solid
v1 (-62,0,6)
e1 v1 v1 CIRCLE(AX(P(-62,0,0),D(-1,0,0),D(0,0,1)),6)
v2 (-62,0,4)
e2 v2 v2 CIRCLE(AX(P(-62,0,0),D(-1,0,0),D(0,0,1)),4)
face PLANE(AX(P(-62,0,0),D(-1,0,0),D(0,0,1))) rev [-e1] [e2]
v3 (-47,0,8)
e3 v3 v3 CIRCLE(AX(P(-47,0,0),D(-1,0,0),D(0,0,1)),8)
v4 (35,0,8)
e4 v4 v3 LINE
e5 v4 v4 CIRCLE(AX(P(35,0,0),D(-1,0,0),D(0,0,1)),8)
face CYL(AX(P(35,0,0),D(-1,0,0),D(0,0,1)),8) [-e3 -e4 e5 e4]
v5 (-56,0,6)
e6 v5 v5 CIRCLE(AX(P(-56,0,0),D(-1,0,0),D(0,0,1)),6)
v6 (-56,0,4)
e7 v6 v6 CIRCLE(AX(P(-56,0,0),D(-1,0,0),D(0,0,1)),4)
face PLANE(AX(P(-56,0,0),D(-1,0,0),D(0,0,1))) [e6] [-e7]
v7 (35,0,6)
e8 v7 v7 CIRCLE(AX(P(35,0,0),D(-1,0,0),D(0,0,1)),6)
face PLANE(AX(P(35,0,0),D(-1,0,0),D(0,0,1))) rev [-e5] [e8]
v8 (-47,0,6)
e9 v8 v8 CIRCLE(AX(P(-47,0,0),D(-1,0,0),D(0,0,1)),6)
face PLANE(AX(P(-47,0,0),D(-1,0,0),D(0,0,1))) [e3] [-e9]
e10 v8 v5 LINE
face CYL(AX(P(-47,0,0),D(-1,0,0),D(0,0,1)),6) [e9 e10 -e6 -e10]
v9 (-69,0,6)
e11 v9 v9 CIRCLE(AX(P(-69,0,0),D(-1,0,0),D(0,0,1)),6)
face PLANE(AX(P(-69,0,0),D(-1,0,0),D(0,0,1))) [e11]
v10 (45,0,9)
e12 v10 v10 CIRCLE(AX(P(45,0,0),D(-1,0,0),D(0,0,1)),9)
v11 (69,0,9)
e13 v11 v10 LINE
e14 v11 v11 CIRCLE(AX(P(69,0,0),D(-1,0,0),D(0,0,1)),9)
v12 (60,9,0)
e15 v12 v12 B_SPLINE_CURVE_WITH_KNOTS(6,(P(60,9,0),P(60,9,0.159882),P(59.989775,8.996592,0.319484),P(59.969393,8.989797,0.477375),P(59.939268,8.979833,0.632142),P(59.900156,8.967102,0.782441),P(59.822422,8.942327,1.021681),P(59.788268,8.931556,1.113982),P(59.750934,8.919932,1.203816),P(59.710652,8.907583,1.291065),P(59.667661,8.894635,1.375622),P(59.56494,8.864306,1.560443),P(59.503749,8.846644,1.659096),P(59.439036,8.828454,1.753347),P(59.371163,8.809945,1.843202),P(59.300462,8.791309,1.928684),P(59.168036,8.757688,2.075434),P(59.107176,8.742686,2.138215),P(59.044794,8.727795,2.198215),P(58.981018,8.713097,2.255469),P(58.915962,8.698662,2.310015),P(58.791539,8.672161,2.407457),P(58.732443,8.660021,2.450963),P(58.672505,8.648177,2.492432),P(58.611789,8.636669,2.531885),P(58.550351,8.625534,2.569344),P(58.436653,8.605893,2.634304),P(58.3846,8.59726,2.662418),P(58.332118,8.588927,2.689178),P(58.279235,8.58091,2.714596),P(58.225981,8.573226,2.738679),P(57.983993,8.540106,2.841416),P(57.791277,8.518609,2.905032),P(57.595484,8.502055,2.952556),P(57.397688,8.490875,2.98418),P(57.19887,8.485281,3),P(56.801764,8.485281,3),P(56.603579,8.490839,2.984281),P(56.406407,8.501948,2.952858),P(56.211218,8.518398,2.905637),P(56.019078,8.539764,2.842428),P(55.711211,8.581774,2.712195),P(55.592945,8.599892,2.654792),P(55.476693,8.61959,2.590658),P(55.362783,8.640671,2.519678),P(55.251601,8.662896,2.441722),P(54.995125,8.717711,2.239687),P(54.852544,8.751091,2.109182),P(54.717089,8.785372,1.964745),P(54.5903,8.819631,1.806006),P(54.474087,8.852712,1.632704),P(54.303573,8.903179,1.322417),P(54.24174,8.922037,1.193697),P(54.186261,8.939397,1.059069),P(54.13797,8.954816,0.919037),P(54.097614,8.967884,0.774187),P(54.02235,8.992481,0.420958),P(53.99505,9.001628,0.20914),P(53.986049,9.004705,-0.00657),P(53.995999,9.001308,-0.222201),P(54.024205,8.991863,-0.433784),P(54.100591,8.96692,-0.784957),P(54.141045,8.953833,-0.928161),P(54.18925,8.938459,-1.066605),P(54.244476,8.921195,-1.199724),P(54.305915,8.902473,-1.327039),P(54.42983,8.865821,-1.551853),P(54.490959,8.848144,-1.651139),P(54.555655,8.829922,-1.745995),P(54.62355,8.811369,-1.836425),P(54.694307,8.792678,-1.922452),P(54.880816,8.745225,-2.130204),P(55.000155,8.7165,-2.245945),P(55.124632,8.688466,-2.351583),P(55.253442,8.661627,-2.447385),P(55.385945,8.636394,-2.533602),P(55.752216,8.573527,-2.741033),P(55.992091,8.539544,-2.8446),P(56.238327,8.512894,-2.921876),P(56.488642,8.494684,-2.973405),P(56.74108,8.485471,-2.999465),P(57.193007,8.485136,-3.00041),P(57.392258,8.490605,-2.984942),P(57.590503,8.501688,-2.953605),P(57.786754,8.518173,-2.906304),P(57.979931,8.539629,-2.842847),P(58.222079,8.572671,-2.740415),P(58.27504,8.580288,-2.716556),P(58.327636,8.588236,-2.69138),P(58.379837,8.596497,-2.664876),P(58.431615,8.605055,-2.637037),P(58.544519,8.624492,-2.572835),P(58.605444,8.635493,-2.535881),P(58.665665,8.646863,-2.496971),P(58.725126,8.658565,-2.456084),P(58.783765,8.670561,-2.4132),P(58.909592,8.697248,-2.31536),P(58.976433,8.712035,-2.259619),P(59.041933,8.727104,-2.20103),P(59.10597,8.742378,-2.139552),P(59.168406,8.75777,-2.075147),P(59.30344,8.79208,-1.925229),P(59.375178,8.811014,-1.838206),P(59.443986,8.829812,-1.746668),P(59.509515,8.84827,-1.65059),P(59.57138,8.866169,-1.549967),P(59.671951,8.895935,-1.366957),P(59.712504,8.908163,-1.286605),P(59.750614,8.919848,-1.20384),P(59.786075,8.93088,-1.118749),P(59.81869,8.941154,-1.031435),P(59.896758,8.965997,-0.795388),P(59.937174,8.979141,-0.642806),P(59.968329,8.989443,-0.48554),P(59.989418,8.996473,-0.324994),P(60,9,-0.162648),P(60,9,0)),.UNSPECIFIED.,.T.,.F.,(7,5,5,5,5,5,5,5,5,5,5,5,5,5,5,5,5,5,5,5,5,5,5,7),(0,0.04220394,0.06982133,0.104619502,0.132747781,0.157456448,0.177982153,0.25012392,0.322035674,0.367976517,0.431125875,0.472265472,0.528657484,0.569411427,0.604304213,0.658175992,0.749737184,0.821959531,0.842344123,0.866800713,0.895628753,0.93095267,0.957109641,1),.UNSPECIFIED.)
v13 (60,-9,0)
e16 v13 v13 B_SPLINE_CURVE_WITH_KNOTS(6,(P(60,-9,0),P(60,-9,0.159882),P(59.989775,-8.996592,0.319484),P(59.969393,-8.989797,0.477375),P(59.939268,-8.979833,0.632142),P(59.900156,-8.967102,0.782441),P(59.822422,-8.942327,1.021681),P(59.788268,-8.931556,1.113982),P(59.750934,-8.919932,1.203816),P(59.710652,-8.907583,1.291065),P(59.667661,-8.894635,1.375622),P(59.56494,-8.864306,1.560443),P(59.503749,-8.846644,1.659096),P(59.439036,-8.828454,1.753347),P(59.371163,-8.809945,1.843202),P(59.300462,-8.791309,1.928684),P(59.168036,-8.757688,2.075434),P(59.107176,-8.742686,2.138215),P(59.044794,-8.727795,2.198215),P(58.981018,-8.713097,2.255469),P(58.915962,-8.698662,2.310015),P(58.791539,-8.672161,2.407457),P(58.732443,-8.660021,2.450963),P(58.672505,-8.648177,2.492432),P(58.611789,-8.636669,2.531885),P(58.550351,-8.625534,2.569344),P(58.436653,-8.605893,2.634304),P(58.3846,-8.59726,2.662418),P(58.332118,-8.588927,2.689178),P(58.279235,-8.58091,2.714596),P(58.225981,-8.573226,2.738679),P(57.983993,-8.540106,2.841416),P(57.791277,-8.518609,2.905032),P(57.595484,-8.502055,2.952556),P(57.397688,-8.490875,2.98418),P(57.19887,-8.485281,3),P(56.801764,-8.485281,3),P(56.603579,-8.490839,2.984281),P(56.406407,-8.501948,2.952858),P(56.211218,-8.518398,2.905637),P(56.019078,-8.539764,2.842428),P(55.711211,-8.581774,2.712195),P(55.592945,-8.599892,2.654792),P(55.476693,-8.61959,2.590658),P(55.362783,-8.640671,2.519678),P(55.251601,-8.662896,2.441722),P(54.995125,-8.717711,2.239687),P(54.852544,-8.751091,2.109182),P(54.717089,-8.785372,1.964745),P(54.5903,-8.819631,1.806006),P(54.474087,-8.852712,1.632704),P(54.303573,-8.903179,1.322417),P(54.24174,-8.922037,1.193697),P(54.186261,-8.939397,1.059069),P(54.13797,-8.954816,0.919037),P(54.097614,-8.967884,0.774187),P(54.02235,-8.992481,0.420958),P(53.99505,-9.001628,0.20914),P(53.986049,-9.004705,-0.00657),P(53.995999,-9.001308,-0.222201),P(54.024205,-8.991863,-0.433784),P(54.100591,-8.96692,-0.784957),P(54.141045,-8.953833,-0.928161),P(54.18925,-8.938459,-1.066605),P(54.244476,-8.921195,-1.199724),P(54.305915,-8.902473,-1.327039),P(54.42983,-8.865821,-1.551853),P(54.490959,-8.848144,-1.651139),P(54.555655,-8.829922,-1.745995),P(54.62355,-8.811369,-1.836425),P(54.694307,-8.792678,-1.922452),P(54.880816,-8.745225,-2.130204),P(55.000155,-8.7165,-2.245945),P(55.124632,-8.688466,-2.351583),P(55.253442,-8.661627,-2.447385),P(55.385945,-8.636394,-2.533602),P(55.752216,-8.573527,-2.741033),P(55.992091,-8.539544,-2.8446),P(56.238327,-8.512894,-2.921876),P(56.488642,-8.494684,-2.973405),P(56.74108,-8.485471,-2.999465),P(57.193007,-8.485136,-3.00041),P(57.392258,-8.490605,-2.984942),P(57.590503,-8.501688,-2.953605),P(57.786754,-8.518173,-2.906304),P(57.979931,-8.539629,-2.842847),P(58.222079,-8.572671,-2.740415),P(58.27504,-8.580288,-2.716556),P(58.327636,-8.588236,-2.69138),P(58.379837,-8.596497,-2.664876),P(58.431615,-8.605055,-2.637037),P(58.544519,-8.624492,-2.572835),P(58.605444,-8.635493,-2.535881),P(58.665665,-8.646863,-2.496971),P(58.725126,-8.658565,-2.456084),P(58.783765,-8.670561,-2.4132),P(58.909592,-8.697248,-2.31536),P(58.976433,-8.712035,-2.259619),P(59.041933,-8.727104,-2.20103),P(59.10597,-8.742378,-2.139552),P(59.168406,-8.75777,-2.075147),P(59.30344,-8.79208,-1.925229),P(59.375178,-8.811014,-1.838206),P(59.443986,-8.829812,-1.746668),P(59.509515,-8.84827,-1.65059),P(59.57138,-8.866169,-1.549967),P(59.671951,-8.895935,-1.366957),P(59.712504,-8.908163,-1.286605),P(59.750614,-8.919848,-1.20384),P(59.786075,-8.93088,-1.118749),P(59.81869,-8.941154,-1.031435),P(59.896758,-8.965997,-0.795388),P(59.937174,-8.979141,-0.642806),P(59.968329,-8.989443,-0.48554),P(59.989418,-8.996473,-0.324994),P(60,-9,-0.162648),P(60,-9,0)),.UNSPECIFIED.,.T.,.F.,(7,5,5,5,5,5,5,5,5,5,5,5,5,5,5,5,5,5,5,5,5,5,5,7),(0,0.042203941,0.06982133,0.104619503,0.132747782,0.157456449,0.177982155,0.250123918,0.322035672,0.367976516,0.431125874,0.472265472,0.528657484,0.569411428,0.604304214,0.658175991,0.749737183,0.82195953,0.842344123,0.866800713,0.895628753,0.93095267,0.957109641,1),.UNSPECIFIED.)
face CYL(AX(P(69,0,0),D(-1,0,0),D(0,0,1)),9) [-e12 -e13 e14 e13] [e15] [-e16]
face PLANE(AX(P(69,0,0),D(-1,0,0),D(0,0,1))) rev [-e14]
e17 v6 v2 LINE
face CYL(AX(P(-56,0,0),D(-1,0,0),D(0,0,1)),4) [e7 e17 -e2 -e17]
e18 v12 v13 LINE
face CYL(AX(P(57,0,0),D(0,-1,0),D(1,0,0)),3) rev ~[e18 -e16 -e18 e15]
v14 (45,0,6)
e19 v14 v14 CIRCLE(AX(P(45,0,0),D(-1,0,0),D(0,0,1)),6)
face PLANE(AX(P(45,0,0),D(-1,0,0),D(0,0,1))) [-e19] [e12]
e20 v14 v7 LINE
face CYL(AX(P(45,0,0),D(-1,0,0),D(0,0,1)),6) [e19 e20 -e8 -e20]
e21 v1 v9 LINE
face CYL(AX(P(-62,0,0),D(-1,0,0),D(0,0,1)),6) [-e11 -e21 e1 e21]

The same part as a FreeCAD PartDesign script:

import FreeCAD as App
import Part
import Sketcher
Q = App.Units.Quantity

doc = App.newDocument("Part")
body = doc.addObject("PartDesign::Body", "Body")

# Sketch on XZ plane
sketch1 = body.newObject("Sketcher::SketchObject", "Sketch")
sketch1.AttachmentSupport = (doc.getObject("XZ_Plane"), [""])
sketch1.MapMode = "FlatFace"
sketch1.addGeometry([
    Part.LineSegment(App.Vector(-69, 6, 0), App.Vector(-69, 0, 0)),  # 0
    Part.LineSegment(App.Vector(-69, 0, 0), App.Vector(69, 0, 0)),  # 1
    Part.LineSegment(App.Vector(69, 0, 0), App.Vector(69, 9, 0)),  # 2
    Part.LineSegment(App.Vector(69, 9, 0), App.Vector(45, 9, 0)),  # 3
    Part.LineSegment(App.Vector(45, 9, 0), App.Vector(45, 6, 0)),  # 4
    Part.LineSegment(App.Vector(45, 6, 0), App.Vector(35, 6, 0)),  # 5
    Part.LineSegment(App.Vector(35, 6, 0), App.Vector(35, 8, 0)),  # 6
    Part.LineSegment(App.Vector(35, 8, 0), App.Vector(-47, 8, 0)),  # 7
    Part.LineSegment(App.Vector(-47, 8, 0), App.Vector(-47, 6, 0)),  # 8
    Part.LineSegment(App.Vector(-47, 6, 0), App.Vector(-56, 6, 0)),  # 9
    Part.LineSegment(App.Vector(-56, 6, 0), App.Vector(-56, 4, 0)),  # 10
    Part.LineSegment(App.Vector(-56, 4, 0), App.Vector(-62, 4, 0)),  # 11
    Part.LineSegment(App.Vector(-62, 4, 0), App.Vector(-62, 6, 0)),  # 12
    Part.LineSegment(App.Vector(-62, 6, 0), App.Vector(-69, 6, 0)),  # 13
], False)
sketch1.addConstraint([
    Sketcher.Constraint("Coincident", 0, 2, 1, 1),
    Sketcher.Constraint("Coincident", 1, 2, 2, 1),
    Sketcher.Constraint("Coincident", 2, 2, 3, 1),
    Sketcher.Constraint("Coincident", 3, 2, 4, 1),
    Sketcher.Constraint("Coincident", 4, 2, 5, 1),
    Sketcher.Constraint("Coincident", 5, 2, 6, 1),
    Sketcher.Constraint("Coincident", 6, 2, 7, 1),
    Sketcher.Constraint("Coincident", 7, 2, 8, 1),
    Sketcher.Constraint("Coincident", 8, 2, 9, 1),
    Sketcher.Constraint("Coincident", 9, 2, 10, 1),
    Sketcher.Constraint("Coincident", 10, 2, 11, 1),
    Sketcher.Constraint("Coincident", 11, 2, 12, 1),
    Sketcher.Constraint("Coincident", 12, 2, 13, 1),
    Sketcher.Constraint("Coincident", 13, 2, 0, 1),
    Sketcher.Constraint("Vertical", 0),
    Sketcher.Constraint("Horizontal", 1),
    Sketcher.Constraint("Vertical", 2),
    Sketcher.Constraint("Horizontal", 3),
    Sketcher.Constraint("Vertical", 4),
    Sketcher.Constraint("Horizontal", 5),
    Sketcher.Constraint("Vertical", 6),
    Sketcher.Constraint("Horizontal", 7),
    Sketcher.Constraint("Vertical", 8),
    Sketcher.Constraint("Horizontal", 9),
    Sketcher.Constraint("Vertical", 10),
    Sketcher.Constraint("Horizontal", 11),
    Sketcher.Constraint("Vertical", 12),
    Sketcher.Constraint("Horizontal", 13),
    Sketcher.Constraint("Symmetric", 0, 2, 1, 2, -1, 1),
    Sketcher.Constraint("Horizontal", 5, 2, 8, 2),
    Sketcher.Constraint("Horizontal", 9, 2, 12, 2),
    Sketcher.Constraint("Equal", 11, 0),
    Sketcher.Constraint("Equal", 9, 2),
    Sketcher.Constraint("Equal", 8, 10),
    Sketcher.Constraint("DistanceX", 1, 1, 1, 2, Q("138 mm")),
    Sketcher.Constraint("DistanceX", 3, 2, 3, 1, Q("24 mm")),
    Sketcher.Constraint("DistanceX", 5, 2, 5, 1, Q("10 mm")),
    Sketcher.Constraint("DistanceX", 7, 2, 7, 1, Q("82 mm")),
    Sketcher.Constraint("DistanceX", 9, 2, 9, 1, Q("9 mm")),
    Sketcher.Constraint("DistanceX", 11, 2, 11, 1, Q("6 mm")),
    Sketcher.Constraint("DistanceY", 6, 1, 6, 2, Q("2 mm")),
])
revolution = body.newObject("PartDesign::Revolution", "Revolution")
revolution.Profile = sketch1
revolution.ReferenceAxis = (sketch1, ["H_Axis"])
revolution.Angle = 360

# Sketch on XZ plane
sketch2 = body.newObject("Sketcher::SketchObject", "Sketch001")
sketch2.AttachmentSupport = (doc.getObject("XZ_Plane"), [""])
sketch2.MapMode = "FlatFace"
sketch2.addGeometry(Part.Circle(App.Vector(57, 0, 0), App.Vector(0, 0, 1), 3), False)
sketch2.addConstraint([
    Sketcher.Constraint("PointOnObject", 0, 3, -1),
    Sketcher.Constraint("Diameter", 0, Q("6 mm")),
    Sketcher.Constraint("DistanceX", -1, 1, 0, 3, Q("57 mm")),
])
pocket1 = body.newObject("PartDesign::Pocket", "Pocket")
pocket1.Profile = sketch2
pocket1.Length = 25
pocket1.Midplane = True

doc.recompute()
